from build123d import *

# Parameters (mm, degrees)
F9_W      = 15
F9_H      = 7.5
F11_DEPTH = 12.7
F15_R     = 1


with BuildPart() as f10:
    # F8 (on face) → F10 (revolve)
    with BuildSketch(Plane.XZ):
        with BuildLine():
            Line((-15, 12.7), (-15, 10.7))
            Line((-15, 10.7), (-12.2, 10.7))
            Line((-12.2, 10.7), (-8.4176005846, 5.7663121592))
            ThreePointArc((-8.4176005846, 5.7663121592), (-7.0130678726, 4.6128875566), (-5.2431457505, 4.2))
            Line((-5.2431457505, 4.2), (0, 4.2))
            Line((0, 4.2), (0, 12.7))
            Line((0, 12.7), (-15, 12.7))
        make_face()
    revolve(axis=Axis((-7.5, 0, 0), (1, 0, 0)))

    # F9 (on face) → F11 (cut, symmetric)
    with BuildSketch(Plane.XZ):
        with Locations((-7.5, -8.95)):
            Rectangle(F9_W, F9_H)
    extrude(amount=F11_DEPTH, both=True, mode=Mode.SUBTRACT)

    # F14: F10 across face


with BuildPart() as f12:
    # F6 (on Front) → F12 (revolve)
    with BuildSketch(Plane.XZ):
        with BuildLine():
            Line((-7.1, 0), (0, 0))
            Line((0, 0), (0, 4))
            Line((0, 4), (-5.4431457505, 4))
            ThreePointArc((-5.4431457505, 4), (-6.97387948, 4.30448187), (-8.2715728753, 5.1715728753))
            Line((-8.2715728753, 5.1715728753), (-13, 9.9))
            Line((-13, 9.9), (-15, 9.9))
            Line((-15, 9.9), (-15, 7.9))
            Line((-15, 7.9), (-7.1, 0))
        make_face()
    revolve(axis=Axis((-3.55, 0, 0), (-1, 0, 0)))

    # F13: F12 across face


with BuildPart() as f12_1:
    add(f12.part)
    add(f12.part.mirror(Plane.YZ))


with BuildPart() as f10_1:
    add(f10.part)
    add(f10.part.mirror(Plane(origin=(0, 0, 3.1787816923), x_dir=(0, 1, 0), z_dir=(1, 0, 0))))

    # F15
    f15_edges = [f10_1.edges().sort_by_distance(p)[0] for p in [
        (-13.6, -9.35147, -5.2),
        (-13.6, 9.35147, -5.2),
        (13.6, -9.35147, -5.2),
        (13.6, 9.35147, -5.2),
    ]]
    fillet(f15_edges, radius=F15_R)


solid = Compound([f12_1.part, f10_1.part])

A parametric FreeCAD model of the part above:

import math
import FreeCAD as App
import Part
import Sketcher
Q = App.Units.Quantity


def edges_at(feature, points):
    """Names of the edges that pass closest to the given points."""
    edges = feature.Shape.Edges
    near = lambda p: min(range(len(edges)), key=lambda i: edges[i].distToShape(Part.Vertex(*p))[0])
    return sorted({f"Edge{near(p) + 1}" for p in points})


def add_polygon(sketch, points):
    """Adds a closed chain of lines whose ends are joined by coincident constraints."""
    first, n = sketch.GeometryCount, len(points)
    for a, b in zip(points, points[1:] + points[:1]):
        sketch.addGeometry(Part.LineSegment(App.Vector(*a, 0), App.Vector(*b, 0)), False)
    for i in range(n):
        sketch.addConstraint(Sketcher.Constraint("Coincident", first + i, 2, first + (i + 1) % n, 1))

doc = App.newDocument("Part")
body = doc.addObject("PartDesign::Body", "Body")

sketch1 = body.newObject("Sketcher::SketchObject", "Sketch")
sketch1.AttachmentSupport = (doc.getObject("XZ_Plane"), [""])
sketch1.MapMode = "FlatFace"
sketch1.addGeometry([
    Part.LineSegment(App.Vector(-15, 12.7, 0), App.Vector(-15, 10.7, 0)),
    Part.LineSegment(App.Vector(-15, 10.7, 0), App.Vector(-12.2, 10.7, 0)),
    Part.LineSegment(App.Vector(-12.2, 10.7, 0), App.Vector(-8.4, 5.8, 0)),
    Part.ArcOfCircle(Part.Circle(App.Vector(-5.2, 8.2, 0), App.Vector(0, 0, 1), 4), math.radians(-143), math.radians(-90)),
    Part.LineSegment(App.Vector(-5.2, 4.2, 0), App.Vector(0, 4.2, 0)),
    Part.LineSegment(App.Vector(0, 4.2, 0), App.Vector(0, 12.7, 0)),
    Part.LineSegment(App.Vector(0, 12.7, 0), App.Vector(-15, 12.7, 0)),
], False)
sketch1.addConstraint([
    Sketcher.Constraint("Coincident", 0, 2, 1, 1),
    Sketcher.Constraint("Coincident", 1, 2, 2, 1),
    Sketcher.Constraint("Tangent", 2, 2, 3, 1),
    Sketcher.Constraint("Tangent", 3, 2, 4, 1),
    Sketcher.Constraint("Coincident", 4, 2, 5, 1),
    Sketcher.Constraint("Coincident", 5, 2, 6, 1),
    Sketcher.Constraint("Coincident", 6, 2, 0, 1),
    Sketcher.Constraint("Vertical", 0),
    Sketcher.Constraint("Horizontal", 1),
    Sketcher.Constraint("Horizontal", 4),
    Sketcher.Constraint("Vertical", 5),
    Sketcher.Constraint("Horizontal", 6),
    Sketcher.Constraint("PointOnObject", 4, 2, -2),
    Sketcher.Constraint("Radius", 3, Q("4 mm")),
    Sketcher.Constraint("DistanceX", 6, 2, 6, 1, Q("15 mm")),
    Sketcher.Constraint("DistanceY", 0, 2, 0, 1, Q("2 mm")),
    Sketcher.Constraint("DistanceX", 1, 1, 1, 2, Q("2.8 mm")),
    Sketcher.Constraint("DistanceY", 5, 1, 5, 2, Q("8.5 mm")),
    Sketcher.Constraint("DistanceY", -1, 1, 3, 3, Q("8.2 mm")),
    Sketcher.Constraint("DistanceX", 2, 2, -1, 1, Q("8.417601 mm")),
])
revolution = body.newObject("PartDesign::Revolution", "Revolution")
revolution.Profile = sketch1
revolution.ReferenceAxis = (sketch1, ["H_Axis"])
revolution.Angle = 360

sketch2 = body.newObject("Sketcher::SketchObject", "Sketch001")
sketch2.AttachmentSupport = (doc.getObject("XZ_Plane"), [""])
sketch2.MapMode = "FlatFace"
add_polygon(sketch2, [(-15, -5), (-15, -13), (0, -13), (0, -5)])
sketch2.addConstraint([
    Sketcher.Constraint("Vertical", 0),
    Sketcher.Constraint("Horizontal", 1),
    Sketcher.Constraint("Vertical", 2),
    Sketcher.Constraint("Horizontal", 3),
    Sketcher.Constraint("PointOnObject", 1, 2, -2),
    Sketcher.Constraint("DistanceX", 1, 1, 1, 2, Q("15 mm")),
    Sketcher.Constraint("DistanceY", 0, 2, 0, 1, Q("7.5 mm")),
    Sketcher.Constraint("DistanceY", 0, 2, -1, 1, Q("12.7 mm")),
])
pocket1 = body.newObject("PartDesign::Pocket", "Pocket")
pocket1.Profile = sketch2
pocket1.Length = 25.4
pocket1.Midplane = True
body2 = doc.addObject("PartDesign::Body", "Body001")

sketch3 = body2.newObject("Sketcher::SketchObject", "Sketch002")
sketch3.AttachmentSupport = (doc.getObject("XZ_Plane001"), [""])
sketch3.MapMode = "FlatFace"
sketch3.addGeometry([
    Part.LineSegment(App.Vector(-7.1, 0, 0), App.Vector(0, 0, 0)),
    Part.LineSegment(App.Vector(0, 0, 0), App.Vector(0, 4, 0)),
    Part.LineSegment(App.Vector(0, 4, 0), App.Vector(-5.4, 4, 0)),
    Part.ArcOfCircle(Part.Circle(App.Vector(-5.4, 8, 0), App.Vector(0, 0, 1), 4), math.radians(-135), math.radians(-90)),
    Part.LineSegment(App.Vector(-8.3, 5.2, 0), App.Vector(-13, 9.9, 0)),
    Part.LineSegment(App.Vector(-13, 9.9, 0), App.Vector(-15, 9.9, 0)),
    Part.LineSegment(App.Vector(-15, 9.9, 0), App.Vector(-15, 7.9, 0)),
    Part.LineSegment(App.Vector(-15, 7.9, 0), App.Vector(-7.1, 0, 0)),
], False)
sketch3.addConstraint([
    Sketcher.Constraint("Coincident", 0, 2, 1, 1),
    Sketcher.Constraint("Coincident", 1, 2, 2, 1),
    Sketcher.Constraint("Tangent", 2, 2, 3, 2),
    Sketcher.Constraint("Tangent", 3, 1, 4, 1),
    Sketcher.Constraint("Coincident", 4, 2, 5, 1),
    Sketcher.Constraint("Coincident", 5, 2, 6, 1),
    Sketcher.Constraint("Coincident", 6, 2, 7, 1),
    Sketcher.Constraint("Coincident", 7, 2, 0, 1),
    Sketcher.Constraint("Horizontal", 0),
    Sketcher.Constraint("Vertical", 1),
    Sketcher.Constraint("Horizontal", 2),
    Sketcher.Constraint("Horizontal", 5),
    Sketcher.Constraint("Vertical", 6),
    Sketcher.Constraint("Coincident", 0, 2, -1, 1),
    Sketcher.Constraint("Parallel", 4, 7),
    Sketcher.Constraint("Equal", 5, 6),
    Sketcher.Constraint("Radius", 3, Q("4 mm")),
    Sketcher.Constraint("DistanceX", 5, 2, 5, 1, Q("2 mm")),
    Sketcher.Constraint("DistanceY", 1, 1, 1, 2, Q("4 mm")),
    Sketcher.Constraint("Angle", 4, Q("135 deg")),
    Sketcher.Constraint("DistanceX", 0, 1, 0, 2, Q("7.1 mm")),
    Sketcher.Constraint("DistanceX", 4, 2, -1, 1, Q("13 mm")),
])
revolution2 = body2.newObject("PartDesign::Revolution", "Revolution001")
revolution2.Profile = sketch3
revolution2.ReferenceAxis = (sketch3, ["H_Axis"])
revolution2.Angle = 360
body3 = doc.addObject("PartDesign::Body", "Body002")
doc.recompute()

body3.BaseFeature = body2
doc.recompute()

mirroring = doc.addObject("Part::Mirroring", "Mirroring")
mirroring.Source = body2
mirroring.Base = App.Vector(0, 0, 0)
mirroring.Normal = App.Vector(1, 0, 0)
body4 = doc.addObject("PartDesign::Body", "Body003")
body4.BaseFeature = mirroring
boolean = body3.newObject("PartDesign::Boolean", "Boolean")
boolean.Type = "Fuse"
boolean.addObjects([body4])
doc.recompute()
body5 = doc.addObject("PartDesign::Body", "Body004")
doc.recompute()

body5.BaseFeature = body
doc.recompute()

mirroring2 = doc.addObject("Part::Mirroring", "Mirroring001")
mirroring2.Source = body
mirroring2.Base = App.Vector(0, 0, 3.178782)
mirroring2.Normal = App.Vector(1, 0, 0)
body6 = doc.addObject("PartDesign::Body", "Body005")
body6.BaseFeature = mirroring2
boolean2 = body5.newObject("PartDesign::Boolean", "Boolean001")
boolean2.Type = "Fuse"
boolean2.addObjects([body6])
doc.recompute()

fillet = body5.newObject("PartDesign::Fillet", "Fillet")
fillet.Base = (boolean2, edges_at(boolean2, [
    (-13.6, -9.351, -5.2),
    (-13.6, 9.351, -5.2),
    (13.6, -9.351, -5.2),
    (13.6, 9.351, -5.2),
]))
fillet.Radius = 1
mirroring.Visibility = False
mirroring2.Visibility = False

doc.recompute()
